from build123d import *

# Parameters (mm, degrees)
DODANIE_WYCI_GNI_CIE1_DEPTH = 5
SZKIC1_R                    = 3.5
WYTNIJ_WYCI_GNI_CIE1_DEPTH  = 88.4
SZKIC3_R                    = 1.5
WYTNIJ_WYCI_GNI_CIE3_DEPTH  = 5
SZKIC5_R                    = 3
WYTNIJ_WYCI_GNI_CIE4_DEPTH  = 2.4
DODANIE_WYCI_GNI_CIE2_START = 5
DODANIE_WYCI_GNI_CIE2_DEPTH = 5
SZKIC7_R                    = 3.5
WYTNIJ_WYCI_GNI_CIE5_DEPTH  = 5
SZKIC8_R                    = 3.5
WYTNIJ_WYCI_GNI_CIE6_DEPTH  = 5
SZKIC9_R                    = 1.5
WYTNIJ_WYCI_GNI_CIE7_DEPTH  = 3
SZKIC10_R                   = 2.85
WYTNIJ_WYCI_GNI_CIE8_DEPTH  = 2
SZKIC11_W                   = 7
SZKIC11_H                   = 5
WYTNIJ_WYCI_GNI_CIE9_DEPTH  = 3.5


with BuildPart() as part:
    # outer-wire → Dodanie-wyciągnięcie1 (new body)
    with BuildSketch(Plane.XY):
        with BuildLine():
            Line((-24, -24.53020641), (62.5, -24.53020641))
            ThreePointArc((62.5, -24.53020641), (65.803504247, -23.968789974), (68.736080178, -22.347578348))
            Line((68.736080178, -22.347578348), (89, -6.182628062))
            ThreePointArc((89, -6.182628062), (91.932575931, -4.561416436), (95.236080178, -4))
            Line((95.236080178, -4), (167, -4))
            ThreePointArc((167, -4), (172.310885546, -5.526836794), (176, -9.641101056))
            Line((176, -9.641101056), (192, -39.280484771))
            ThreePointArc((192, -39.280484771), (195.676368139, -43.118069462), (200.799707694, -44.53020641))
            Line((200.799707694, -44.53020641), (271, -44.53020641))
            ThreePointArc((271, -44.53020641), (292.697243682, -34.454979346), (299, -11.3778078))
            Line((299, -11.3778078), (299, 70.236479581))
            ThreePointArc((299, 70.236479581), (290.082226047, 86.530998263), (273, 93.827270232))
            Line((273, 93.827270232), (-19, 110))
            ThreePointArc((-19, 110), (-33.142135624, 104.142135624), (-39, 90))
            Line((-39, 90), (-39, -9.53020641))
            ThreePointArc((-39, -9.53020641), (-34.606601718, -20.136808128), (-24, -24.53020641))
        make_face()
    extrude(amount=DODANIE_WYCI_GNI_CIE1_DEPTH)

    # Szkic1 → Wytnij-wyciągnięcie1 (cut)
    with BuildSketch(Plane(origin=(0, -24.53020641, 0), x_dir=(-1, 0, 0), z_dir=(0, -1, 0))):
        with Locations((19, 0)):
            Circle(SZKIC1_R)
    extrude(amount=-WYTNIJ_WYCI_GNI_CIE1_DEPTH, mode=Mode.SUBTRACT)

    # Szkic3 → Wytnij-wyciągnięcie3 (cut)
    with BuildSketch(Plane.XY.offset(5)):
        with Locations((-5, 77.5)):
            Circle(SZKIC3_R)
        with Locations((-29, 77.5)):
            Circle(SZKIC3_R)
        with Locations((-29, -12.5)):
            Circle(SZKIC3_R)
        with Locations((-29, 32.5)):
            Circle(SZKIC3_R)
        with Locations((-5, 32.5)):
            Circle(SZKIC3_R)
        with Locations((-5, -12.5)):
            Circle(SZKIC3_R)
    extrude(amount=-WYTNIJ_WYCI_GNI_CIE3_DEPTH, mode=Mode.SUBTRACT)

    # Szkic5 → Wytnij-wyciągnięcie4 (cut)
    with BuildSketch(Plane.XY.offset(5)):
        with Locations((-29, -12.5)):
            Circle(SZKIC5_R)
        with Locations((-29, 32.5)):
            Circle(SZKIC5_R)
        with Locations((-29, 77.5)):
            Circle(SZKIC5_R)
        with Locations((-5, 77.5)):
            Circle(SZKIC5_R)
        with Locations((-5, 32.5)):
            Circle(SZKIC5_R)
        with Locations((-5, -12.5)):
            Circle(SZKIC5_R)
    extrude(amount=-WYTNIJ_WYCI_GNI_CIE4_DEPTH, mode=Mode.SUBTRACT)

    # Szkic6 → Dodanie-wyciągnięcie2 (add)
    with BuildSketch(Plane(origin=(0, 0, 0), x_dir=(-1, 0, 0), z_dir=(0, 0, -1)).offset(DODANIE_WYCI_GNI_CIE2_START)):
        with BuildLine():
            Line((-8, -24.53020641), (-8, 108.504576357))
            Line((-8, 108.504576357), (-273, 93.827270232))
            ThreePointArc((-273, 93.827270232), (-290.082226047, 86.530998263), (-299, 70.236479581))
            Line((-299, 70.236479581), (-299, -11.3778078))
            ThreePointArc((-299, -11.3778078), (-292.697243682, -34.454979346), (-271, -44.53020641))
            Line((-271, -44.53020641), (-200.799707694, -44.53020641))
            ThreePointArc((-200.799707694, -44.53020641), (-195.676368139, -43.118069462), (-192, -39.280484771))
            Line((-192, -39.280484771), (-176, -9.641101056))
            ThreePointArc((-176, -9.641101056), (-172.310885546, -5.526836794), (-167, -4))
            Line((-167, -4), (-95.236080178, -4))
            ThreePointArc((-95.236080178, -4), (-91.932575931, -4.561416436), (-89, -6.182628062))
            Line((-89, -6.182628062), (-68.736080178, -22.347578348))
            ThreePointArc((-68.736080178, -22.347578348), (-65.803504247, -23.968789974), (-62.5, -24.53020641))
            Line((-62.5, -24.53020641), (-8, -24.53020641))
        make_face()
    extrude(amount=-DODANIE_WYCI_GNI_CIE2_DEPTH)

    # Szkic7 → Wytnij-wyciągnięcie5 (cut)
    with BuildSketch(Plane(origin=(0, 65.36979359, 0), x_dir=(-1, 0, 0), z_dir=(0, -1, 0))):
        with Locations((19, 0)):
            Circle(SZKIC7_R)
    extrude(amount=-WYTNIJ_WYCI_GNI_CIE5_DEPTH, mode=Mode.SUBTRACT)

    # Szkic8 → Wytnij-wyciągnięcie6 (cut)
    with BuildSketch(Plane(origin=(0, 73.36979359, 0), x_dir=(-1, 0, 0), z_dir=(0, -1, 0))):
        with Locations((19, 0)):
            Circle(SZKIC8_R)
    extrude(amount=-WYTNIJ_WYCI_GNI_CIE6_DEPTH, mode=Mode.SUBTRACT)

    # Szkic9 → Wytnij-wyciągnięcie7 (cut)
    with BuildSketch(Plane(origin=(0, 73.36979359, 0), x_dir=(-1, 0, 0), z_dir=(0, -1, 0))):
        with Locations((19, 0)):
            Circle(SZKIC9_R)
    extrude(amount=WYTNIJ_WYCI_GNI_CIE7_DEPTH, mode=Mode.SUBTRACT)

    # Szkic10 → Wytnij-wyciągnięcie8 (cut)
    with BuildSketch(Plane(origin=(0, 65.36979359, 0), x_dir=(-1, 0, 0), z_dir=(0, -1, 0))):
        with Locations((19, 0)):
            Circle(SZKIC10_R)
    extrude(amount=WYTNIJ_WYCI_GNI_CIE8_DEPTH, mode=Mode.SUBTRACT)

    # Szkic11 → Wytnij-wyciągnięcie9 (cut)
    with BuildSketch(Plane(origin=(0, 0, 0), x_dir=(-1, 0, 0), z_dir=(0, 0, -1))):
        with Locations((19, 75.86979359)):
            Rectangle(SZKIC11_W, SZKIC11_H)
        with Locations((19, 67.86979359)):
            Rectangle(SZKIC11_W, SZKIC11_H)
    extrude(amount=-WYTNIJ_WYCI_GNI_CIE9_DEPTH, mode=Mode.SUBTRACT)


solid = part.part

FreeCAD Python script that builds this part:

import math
import FreeCAD as App
import Part
import Sketcher


def add_polygon(sketch, points):
    """Adds a closed chain of lines whose ends are joined by coincident constraints."""
    first, n = sketch.GeometryCount, len(points)
    for a, b in zip(points, points[1:] + points[:1]):
        sketch.addGeometry(Part.LineSegment(App.Vector(*a, 0), App.Vector(*b, 0)), False)
    for i in range(n):
        sketch.addConstraint(Sketcher.Constraint("Coincident", first + i, 2, first + (i + 1) % n, 1))

doc = App.newDocument("Part")
body = doc.addObject("PartDesign::Body", "Body")

# Sketch on XY plane
sketch1 = body.newObject("Sketcher::SketchObject", "Sketch")
sketch1.AttachmentSupport = (doc.getObject("XY_Plane"), [""])
sketch1.MapMode = "FlatFace"
sketch1.addGeometry(Part.LineSegment(App.Vector(-24, -25, 0), App.Vector(62, -25, 0)), False)
sketch1.addGeometry(Part.ArcOfCircle(Part.Circle(App.Vector(63, -15, 0), App.Vector(0, 0, 1), 10), math.radians(-90), math.radians(-51)), False)
sketch1.addGeometry(Part.LineSegment(App.Vector(69, -22, 0), App.Vector(89, -6, 0)), False)
sketch1.addGeometry(Part.ArcOfCircle(Part.Circle(App.Vector(95, -14, 0), App.Vector(0, 0, 1), 10), math.radians(90), math.radians(129)), False)
sketch1.addGeometry(Part.LineSegment(App.Vector(95, -4, 0), App.Vector(167, -4, 0)), False)
sketch1.addGeometry(Part.ArcOfCircle(Part.Circle(App.Vector(167, -14, 0), App.Vector(0, 0, 1), 10), math.radians(26), math.radians(90)), False)
sketch1.addGeometry(Part.LineSegment(App.Vector(176, -10, 0), App.Vector(192, -39, 0)), False)
sketch1.addGeometry(Part.ArcOfCircle(Part.Circle(App.Vector(201, -35, 0), App.Vector(0, 0, 1), 10), math.radians(-152), math.radians(-90)), False)
sketch1.addGeometry(Part.LineSegment(App.Vector(201, -45, 0), App.Vector(271, -45, 0)), False)
sketch1.addGeometry(Part.ArcOfCircle(Part.Circle(App.Vector(271, -16, 0), App.Vector(0, 0, 1), 28), math.radians(-90), math.radians(10)), False)
sketch1.addGeometry(Part.LineSegment(App.Vector(299, -11, 0), App.Vector(299, 70, 0)), False)
sketch1.addGeometry(Part.ArcOfCircle(Part.Circle(App.Vector(271, 66, 0), App.Vector(0, 0, 1), 28), math.radians(10), math.radians(86)), False)
sketch1.addGeometry(Part.LineSegment(App.Vector(273, 94, 0), App.Vector(-19, 110, 0)), False)
sketch1.addGeometry(Part.ArcOfCircle(Part.Circle(App.Vector(-19, 90, 0), App.Vector(0, 0, 1), 20), math.radians(90), math.radians(180)), False)
sketch1.addGeometry(Part.LineSegment(App.Vector(-39, 90, 0), App.Vector(-39, -10, 0)), False)
sketch1.addGeometry(Part.ArcOfCircle(Part.Circle(App.Vector(-24, -10, 0), App.Vector(0, 0, 1), 15), math.radians(180), math.radians(270)), False)
sketch1.addConstraint(Sketcher.Constraint("Tangent", 0, 2, 1, 1))
sketch1.addConstraint(Sketcher.Constraint("Tangent", 1, 2, 2, 1))
sketch1.addConstraint(Sketcher.Constraint("Tangent", 2, 2, 3, 2))
sketch1.addConstraint(Sketcher.Constraint("Tangent", 3, 1, 4, 1))
sketch1.addConstraint(Sketcher.Constraint("Tangent", 4, 2, 5, 2))
sketch1.addConstraint(Sketcher.Constraint("Coincident", 5, 1, 6, 1))
sketch1.addConstraint(Sketcher.Constraint("Tangent", 6, 2, 7, 1))
sketch1.addConstraint(Sketcher.Constraint("Tangent", 7, 2, 8, 1))
sketch1.addConstraint(Sketcher.Constraint("Tangent", 8, 2, 9, 1))
sketch1.addConstraint(Sketcher.Constraint("Coincident", 9, 2, 10, 1))
sketch1.addConstraint(Sketcher.Constraint("Coincident", 10, 2, 11, 1))
sketch1.addConstraint(Sketcher.Constraint("Coincident", 11, 2, 12, 1))
sketch1.addConstraint(Sketcher.Constraint("Coincident", 12, 2, 13, 1))
sketch1.addConstraint(Sketcher.Constraint("Tangent", 13, 2, 14, 1))
sketch1.addConstraint(Sketcher.Constraint("Tangent", 14, 2, 15, 1))
sketch1.addConstraint(Sketcher.Constraint("Tangent", 15, 2, 0, 1))
sketch1.addConstraint(Sketcher.Constraint("Horizontal", 0))
sketch1.addConstraint(Sketcher.Constraint("Horizontal", 4))
sketch1.addConstraint(Sketcher.Constraint("Horizontal", 8))
sketch1.addConstraint(Sketcher.Constraint("Vertical", 10))
sketch1.addConstraint(Sketcher.Constraint("Vertical", 14))
sketch1.addConstraint(Sketcher.Constraint("Equal", 1, 3))
sketch1.addConstraint(Sketcher.Constraint("Equal", 3, 5))
sketch1.addConstraint(Sketcher.Constraint("Equal", 5, 7))
sketch1.addConstraint(Sketcher.Constraint("Vertical", 9, 3, 11, 3))
sketch1.addConstraint(Sketcher.Constraint("Vertical", 13, 3, 12, 2))
sketch1.addConstraint(Sketcher.Constraint("Radius", 1, 10.0))
sketch1.addConstraint(Sketcher.Constraint("Radius", 13, 20.0))
sketch1.addConstraint(Sketcher.Constraint("Radius", 15, 15.0))
sketch1.addConstraint(Sketcher.Constraint("DistanceX", 0, 1, 0, 2, 86.5))
sketch1.addConstraint(Sketcher.Constraint("DistanceY", 3, 3, -1, 1, 14.0))
sketch1.addConstraint(Sketcher.Constraint("DistanceX", -1, 1, 5, 3, 167.0))
sketch1.addConstraint(Sketcher.Constraint("DistanceX", -1, 1, 9, 3, 271.0))
sketch1.addConstraint(Sketcher.Constraint("DistanceX", 13, 3, -1, 1, 19.0))
sketch1.addConstraint(Sketcher.Constraint("DistanceY", -1, 1, 13, 3, 90.0))
sketch1.addConstraint(Sketcher.Constraint("DistanceX", -1, 1, 2, 2, 89.0))
sketch1.addConstraint(Sketcher.Constraint("DistanceX", -1, 1, 5, 1, 176.0))
sketch1.addConstraint(Sketcher.Constraint("DistanceX", -1, 1, 6, 2, 192.0))
sketch1.addConstraint(Sketcher.Constraint("DistanceX", -1, 1, 9, 2, 299.0))
sketch1.addConstraint(Sketcher.Constraint("DistanceX", -1, 1, 11, 2, 273.0))
sketch1.addConstraint(Sketcher.Constraint("DistanceY", 7, 3, 1, 3, 20.0))
sketch1.addConstraint(Sketcher.Constraint("DistanceY", -1, 1, 11, 3, 65.5))
sketch1.addConstraint(Sketcher.Constraint("Radius", 9, 28.400381))
sketch1.addConstraint(Sketcher.Constraint("Radius", 11, 28.397786))
sketch1.addConstraint(Sketcher.Constraint("DistanceX", 4, 1, 4, 2, 71.76392))
pad1 = body.newObject("PartDesign::Pad", "Pad")
pad1.Profile = sketch1
pad1.Length = 5

# Sketch on XZ plane
sketch2 = body.newObject("Sketcher::SketchObject", "Sketch001")
sketch2.AttachmentSupport = (doc.getObject("XZ_Plane"), [""])
sketch2.MapMode = "FlatFace"
sketch2.AttachmentOffset = App.Placement(App.Vector(0, 0, 24.530206), App.Rotation())
sketch2.addGeometry(Part.Circle(App.Vector(-19, 0, 0), App.Vector(0, 0, 1), 3.5), False)
sketch2.addConstraint(Sketcher.Constraint("PointOnObject", 0, 3, -1))
sketch2.addConstraint(Sketcher.Constraint("Diameter", 0, 7.0))
sketch2.addConstraint(Sketcher.Constraint("DistanceX", 0, 3, -1, 1, 19.0))
pocket1 = body.newObject("PartDesign::Pocket", "Pocket")
pocket1.Profile = sketch2
pocket1.Length = 88.4

# Sketch on XY plane
sketch3 = body.newObject("Sketcher::SketchObject", "Sketch002")
sketch3.AttachmentSupport = (doc.getObject("XY_Plane"), [""])
sketch3.MapMode = "FlatFace"
sketch3.AttachmentOffset = App.Placement(App.Vector(0, 0, 5), App.Rotation())
sketch3.addGeometry(Part.Circle(App.Vector(-5, 77.5, 0), App.Vector(0, 0, 1), 1.5), False)
sketch3.addGeometry(Part.Circle(App.Vector(-29, 77.5, 0), App.Vector(0, 0, 1), 1.5), False)
sketch3.addGeometry(Part.Circle(App.Vector(-29, -12.5, 0), App.Vector(0, 0, 1), 1.5), False)
sketch3.addGeometry(Part.Circle(App.Vector(-29, 32.5, 0), App.Vector(0, 0, 1), 1.5), False)
sketch3.addGeometry(Part.Circle(App.Vector(-5, 32.5, 0), App.Vector(0, 0, 1), 1.5), False)
sketch3.addGeometry(Part.Circle(App.Vector(-5, -12.5, 0), App.Vector(0, 0, 1), 1.5), False)
sketch3.addConstraint(Sketcher.Constraint("Equal", 0, 1))
sketch3.addConstraint(Sketcher.Constraint("Equal", 1, 2))
sketch3.addConstraint(Sketcher.Constraint("Equal", 2, 3))
sketch3.addConstraint(Sketcher.Constraint("Equal", 3, 4))
sketch3.addConstraint(Sketcher.Constraint("Equal", 4, 5))
sketch3.addConstraint(Sketcher.Constraint("Horizontal", 0, 3, 1, 3))
sketch3.addConstraint(Sketcher.Constraint("Horizontal", 3, 3, 4, 3))
sketch3.addConstraint(Sketcher.Constraint("Horizontal", 2, 3, 5, 3))
sketch3.addConstraint(Sketcher.Constraint("Vertical", 1, 3, 2, 3))
sketch3.addConstraint(Sketcher.Constraint("Vertical", 2, 3, 3, 3))
sketch3.addConstraint(Sketcher.Constraint("Vertical", 0, 3, 4, 3))
sketch3.addConstraint(Sketcher.Constraint("Vertical", 4, 3, 5, 3))
sketch3.addConstraint(Sketcher.Constraint("Diameter", 0, 3.0))
sketch3.addConstraint(Sketcher.Constraint("DistanceX", 0, 3, -1, 1, 5.0))
sketch3.addConstraint(Sketcher.Constraint("DistanceX", 1, 3, -1, 1, 29.0))
sketch3.addConstraint(Sketcher.Constraint("DistanceY", 2, 3, 1, 3, 90.0))
sketch3.addConstraint(Sketcher.Constraint("DistanceY", 3, 3, 1, 3, 45.0))
sketch3.addConstraint(Sketcher.Constraint("DistanceY", -1, 1, 0, 3, 77.5))
pocket2 = body.newObject("PartDesign::Pocket", "Pocket001")
pocket2.Profile = sketch3
pocket2.Length = 5

# Sketch on XY plane
sketch4 = body.newObject("Sketcher::SketchObject", "Sketch003")
sketch4.AttachmentSupport = (doc.getObject("XY_Plane"), [""])
sketch4.MapMode = "FlatFace"
sketch4.AttachmentOffset = App.Placement(App.Vector(0, 0, 5), App.Rotation())
sketch4.addGeometry(Part.Circle(App.Vector(-29, -12.5, 0), App.Vector(0, 0, 1), 3), False)
sketch4.addGeometry(Part.Circle(App.Vector(-29, 32.5, 0), App.Vector(0, 0, 1), 3), False)
sketch4.addGeometry(Part.Circle(App.Vector(-29, 77.5, 0), App.Vector(0, 0, 1), 3), False)
sketch4.addGeometry(Part.Circle(App.Vector(-5, 77.5, 0), App.Vector(0, 0, 1), 3), False)
sketch4.addGeometry(Part.Circle(App.Vector(-5, 32.5, 0), App.Vector(0, 0, 1), 3), False)
sketch4.addGeometry(Part.Circle(App.Vector(-5, -12.5, 0), App.Vector(0, 0, 1), 3), False)
sketch4.addConstraint(Sketcher.Constraint("Equal", 0, 1))
sketch4.addConstraint(Sketcher.Constraint("Equal", 1, 2))
sketch4.addConstraint(Sketcher.Constraint("Equal", 2, 3))
sketch4.addConstraint(Sketcher.Constraint("Equal", 3, 4))
sketch4.addConstraint(Sketcher.Constraint("Equal", 4, 5))
sketch4.addConstraint(Sketcher.Constraint("Horizontal", 2, 3, 3, 3))
sketch4.addConstraint(Sketcher.Constraint("Horizontal", 1, 3, 4, 3))
sketch4.addConstraint(Sketcher.Constraint("Horizontal", 0, 3, 5, 3))
sketch4.addConstraint(Sketcher.Constraint("Vertical", 0, 3, 1, 3))
sketch4.addConstraint(Sketcher.Constraint("Vertical", 1, 3, 2, 3))
sketch4.addConstraint(Sketcher.Constraint("Vertical", 3, 3, 4, 3))
sketch4.addConstraint(Sketcher.Constraint("Vertical", 4, 3, 5, 3))
sketch4.addConstraint(Sketcher.Constraint("Diameter", 0, 6.0))
sketch4.addConstraint(Sketcher.Constraint("DistanceX", 0, 3, -1, 1, 29.0))
sketch4.addConstraint(Sketcher.Constraint("DistanceX", 3, 3, -1, 1, 5.0))
sketch4.addConstraint(Sketcher.Constraint("DistanceY", 0, 3, 1, 3, 45.0))
sketch4.addConstraint(Sketcher.Constraint("DistanceY", 1, 3, 2, 3, 45.0))
sketch4.addConstraint(Sketcher.Constraint("DistanceY", 0, 3, -1, 1, 12.5))
pocket3 = body.newObject("PartDesign::Pocket", "Pocket002")
pocket3.Profile = sketch4
pocket3.Length = 2.4

# Sketch on XY plane
sketch5 = body.newObject("Sketcher::SketchObject", "Sketch004")
sketch5.AttachmentSupport = (doc.getObject("XY_Plane"), [""])
sketch5.MapMode = "FlatFace"
sketch5.AttachmentOffset = App.Placement(App.Vector(0, 0, -5), App.Rotation())
sketch5.addGeometry(Part.LineSegment(App.Vector(8, -25, 0), App.Vector(8, 109, 0)), False)
sketch5.addGeometry(Part.LineSegment(App.Vector(8, 109, 0), App.Vector(273, 94, 0)), False)
sketch5.addGeometry(Part.ArcOfCircle(Part.Circle(App.Vector(271, 66, 0), App.Vector(0, 0, 1), 28), math.radians(10), math.radians(86)), False)
sketch5.addGeometry(Part.LineSegment(App.Vector(299, 70, 0), App.Vector(299, -11, 0)), False)
sketch5.addGeometry(Part.ArcOfCircle(Part.Circle(App.Vector(271, -16, 0), App.Vector(0, 0, 1), 28), math.radians(-90), math.radians(10)), False)
sketch5.addGeometry(Part.LineSegment(App.Vector(271, -45, 0), App.Vector(201, -45, 0)), False)
sketch5.addGeometry(Part.ArcOfCircle(Part.Circle(App.Vector(201, -35, 0), App.Vector(0, 0, 1), 10), math.radians(-152), math.radians(-90)), False)
sketch5.addGeometry(Part.LineSegment(App.Vector(192, -39, 0), App.Vector(176, -10, 0)), False)
sketch5.addGeometry(Part.ArcOfCircle(Part.Circle(App.Vector(167, -14, 0), App.Vector(0, 0, 1), 10), math.radians(26), math.radians(90)), False)
sketch5.addGeometry(Part.LineSegment(App.Vector(167, -4, 0), App.Vector(95, -4, 0)), False)
sketch5.addGeometry(Part.ArcOfCircle(Part.Circle(App.Vector(95, -14, 0), App.Vector(0, 0, 1), 10), math.radians(90), math.radians(129)), False)
sketch5.addGeometry(Part.LineSegment(App.Vector(89, -6, 0), App.Vector(69, -22, 0)), False)
sketch5.addGeometry(Part.ArcOfCircle(Part.Circle(App.Vector(63, -15, 0), App.Vector(0, 0, 1), 10), math.radians(-90), math.radians(-51)), False)
sketch5.addGeometry(Part.LineSegment(App.Vector(62, -25, 0), App.Vector(8, -25, 0)), False)
sketch5.addConstraint(Sketcher.Constraint("Coincident", 0, 2, 1, 1))
sketch5.addConstraint(Sketcher.Constraint("Coincident", 1, 2, 2, 2))
sketch5.addConstraint(Sketcher.Constraint("Coincident", 2, 1, 3, 1))
sketch5.addConstraint(Sketcher.Constraint("Coincident", 3, 2, 4, 2))
sketch5.addConstraint(Sketcher.Constraint("Tangent", 4, 1, 5, 1))
sketch5.addConstraint(Sketcher.Constraint("Tangent", 5, 2, 6, 2))
sketch5.addConstraint(Sketcher.Constraint("Tangent", 6, 1, 7, 1))
sketch5.addConstraint(Sketcher.Constraint("Coincident", 7, 2, 8, 1))
sketch5.addConstraint(Sketcher.Constraint("Tangent", 8, 2, 9, 1))
sketch5.addConstraint(Sketcher.Constraint("Tangent", 9, 2, 10, 1))
sketch5.addConstraint(Sketcher.Constraint("Tangent", 10, 2, 11, 1))
sketch5.addConstraint(Sketcher.Constraint("Tangent", 11, 2, 12, 2))
sketch5.addConstraint(Sketcher.Constraint("Tangent", 12, 1, 13, 1))
sketch5.addConstraint(Sketcher.Constraint("Coincident", 13, 2, 0, 1))
sketch5.addConstraint(Sketcher.Constraint("Vertical", 0))
sketch5.addConstraint(Sketcher.Constraint("Vertical", 3))
sketch5.addConstraint(Sketcher.Constraint("Horizontal", 5))
sketch5.addConstraint(Sketcher.Constraint("Horizontal", 9))
sketch5.addConstraint(Sketcher.Constraint("Horizontal", 13))
sketch5.addConstraint(Sketcher.Constraint("Equal", 6, 8))
sketch5.addConstraint(Sketcher.Constraint("Equal", 8, 10))
sketch5.addConstraint(Sketcher.Constraint("Equal", 10, 12))
sketch5.addConstraint(Sketcher.Constraint("Vertical", 2, 3, 4, 3))
sketch5.addConstraint(Sketcher.Constraint("Radius", 6, 10.0))
sketch5.addConstraint(Sketcher.Constraint("DistanceX", 13, 2, 13, 1, 54.5))
sketch5.addConstraint(Sketcher.Constraint("DistanceX", -1, 1, 2, 3, 271.0))
sketch5.addConstraint(Sketcher.Constraint("DistanceX", -1, 1, 8, 3, 167.0))
sketch5.addConstraint(Sketcher.Constraint("DistanceY", 8, 3, -1, 1, 14.0))
sketch5.addConstraint(Sketcher.Constraint("DistanceX", -1, 1, 0, 2, 8.0))
sketch5.addConstraint(Sketcher.Constraint("DistanceX", -1, 1, 1, 2, 273.0))
sketch5.addConstraint(Sketcher.Constraint("DistanceX", -1, 1, 2, 1, 299.0))
sketch5.addConstraint(Sketcher.Constraint("DistanceX", -1, 1, 6, 1, 192.0))
sketch5.addConstraint(Sketcher.Constraint("DistanceX", -1, 1, 7, 2, 176.0))
sketch5.addConstraint(Sketcher.Constraint("DistanceX", -1, 1, 10, 2, 89.0))
sketch5.addConstraint(Sketcher.Constraint("DistanceY", 6, 3, 12, 3, 20.0))
sketch5.addConstraint(Sketcher.Constraint("DistanceY", -1, 1, 2, 3, 65.5))
sketch5.addConstraint(Sketcher.Constraint("Radius", 4, 28.400381))
sketch5.addConstraint(Sketcher.Constraint("Radius", 2, 28.397786))
sketch5.addConstraint(Sketcher.Constraint("DistanceX", 9, 2, 9, 1, 71.76392))
sketch5.addConstraint(Sketcher.Constraint("DistanceY", 0, 1, 0, 2, 133.034783))
pad2 = body.newObject("PartDesign::Pad", "Pad001")
pad2.Profile = sketch5
pad2.Length = 5

# Sketch on XZ plane
sketch6 = body.newObject("Sketcher::SketchObject", "Sketch005")
sketch6.AttachmentSupport = (doc.getObject("XZ_Plane"), [""])
sketch6.MapMode = "FlatFace"
sketch6.AttachmentOffset = App.Placement(App.Vector(0, 0, -65.369794), App.Rotation())
sketch6.addGeometry(Part.Circle(App.Vector(-19, 0, 0), App.Vector(0, 0, 1), 3.5), False)
sketch6.addConstraint(Sketcher.Constraint("PointOnObject", 0, 3, -1))
sketch6.addConstraint(Sketcher.Constraint("Diameter", 0, 7.0))
sketch6.addConstraint(Sketcher.Constraint("DistanceX", 0, 3, -1, 1, 19.0))
pocket4 = body.newObject("PartDesign::Pocket", "Pocket003")
pocket4.Profile = sketch6
pocket4.Length = 5

# Sketch on XZ plane
sketch7 = body.newObject("Sketcher::SketchObject", "Sketch006")
sketch7.AttachmentSupport = (doc.getObject("XZ_Plane"), [""])
sketch7.MapMode = "FlatFace"
sketch7.AttachmentOffset = App.Placement(App.Vector(0, 0, -73.369794), App.Rotation())
sketch7.addGeometry(Part.Circle(App.Vector(-19, 0, 0), App.Vector(0, 0, 1), 3.5), False)
sketch7.addConstraint(Sketcher.Constraint("PointOnObject", 0, 3, -1))
sketch7.addConstraint(Sketcher.Constraint("Diameter", 0, 7.0))
sketch7.addConstraint(Sketcher.Constraint("DistanceX", 0, 3, -1, 1, 19.0))
pocket5 = body.newObject("PartDesign::Pocket", "Pocket004")
pocket5.Profile = sketch7
pocket5.Length = 5

# Sketch on XZ plane
sketch8 = body.newObject("Sketcher::SketchObject", "Sketch007")
sketch8.AttachmentSupport = (doc.getObject("XZ_Plane"), [""])
sketch8.MapMode = "FlatFace"
sketch8.AttachmentOffset = App.Placement(App.Vector(0, 0, -73.369794), App.Rotation())
sketch8.addGeometry(Part.Circle(App.Vector(-19, 0, 0), App.Vector(0, 0, 1), 1.5), False)
sketch8.addConstraint(Sketcher.Constraint("PointOnObject", 0, 3, -1))
sketch8.addConstraint(Sketcher.Constraint("Diameter", 0, 3.0))
sketch8.addConstraint(Sketcher.Constraint("DistanceX", 0, 3, -1, 1, 19.0))
pocket6 = body.newObject("PartDesign::Pocket", "Pocket005")
pocket6.Profile = sketch8
pocket6.Length = 3
pocket6.Reversed = True

# Sketch on XZ plane
sketch9 = body.newObject("Sketcher::SketchObject", "Sketch008")
sketch9.AttachmentSupport = (doc.getObject("XZ_Plane"), [""])
sketch9.MapMode = "FlatFace"
sketch9.AttachmentOffset = App.Placement(App.Vector(0, 0, -65.369794), App.Rotation())
sketch9.addGeometry(Part.Circle(App.Vector(-19, 0, 0), App.Vector(0, 0, 1), 2.9), False)
sketch9.addConstraint(Sketcher.Constraint("PointOnObject", 0, 3, -1))
sketch9.addConstraint(Sketcher.Constraint("Diameter", 0, 5.7))
sketch9.addConstraint(Sketcher.Constraint("DistanceX", 0, 3, -1, 1, 19.0))
pocket7 = body.newObject("PartDesign::Pocket", "Pocket006")
pocket7.Profile = sketch9
pocket7.Length = 2
pocket7.Reversed = True

# Sketch on XY plane
sketch10 = body.newObject("Sketcher::SketchObject", "Sketch009")
sketch10.AttachmentSupport = (doc.getObject("XY_Plane"), [""])
sketch10.MapMode = "FlatFace"
add_polygon(sketch10, [(-16, 78), (-16, 73), (-22, 73), (-22, 78)])  # lines 0-3
add_polygon(sketch10, [(-16, 70), (-16, 65), (-22, 65), (-22, 70)])  # lines 4-7
sketch10.addConstraint(Sketcher.Constraint("Vertical", 0))
sketch10.addConstraint(Sketcher.Constraint("Horizontal", 1))
sketch10.addConstraint(Sketcher.Constraint("Vertical", 2))
sketch10.addConstraint(Sketcher.Constraint("Horizontal", 3))
sketch10.addConstraint(Sketcher.Constraint("Vertical", 4))
sketch10.addConstraint(Sketcher.Constraint("Horizontal", 5))
sketch10.addConstraint(Sketcher.Constraint("Vertical", 6))
sketch10.addConstraint(Sketcher.Constraint("Horizontal", 7))
sketch10.addConstraint(Sketcher.Constraint("Vertical", 3, 2, 4, 2))
sketch10.addConstraint(Sketcher.Constraint("Vertical", 2, 2, 5, 2))
sketch10.addConstraint(Sketcher.Constraint("Equal", 2, 4))
sketch10.addConstraint(Sketcher.Constraint("DistanceX", 1, 2, 1, 1, 7.0))
sketch10.addConstraint(Sketcher.Constraint("DistanceY", 0, 2, 0, 1, 5.0))
sketch10.addConstraint(Sketcher.Constraint("DistanceY", 4, 2, 0, 2, 8.0))
sketch10.addConstraint(Sketcher.Constraint("DistanceX", 0, 2, -1, 1, 15.5))
sketch10.addConstraint(Sketcher.Constraint("DistanceY", -1, 1, 0, 2, 73.369794))
pocket8 = body.newObject("PartDesign::Pocket", "Pocket007")
pocket8.Profile = sketch10
pocket8.Length = 3.5
pocket8.Reversed = True

doc.recompute()
